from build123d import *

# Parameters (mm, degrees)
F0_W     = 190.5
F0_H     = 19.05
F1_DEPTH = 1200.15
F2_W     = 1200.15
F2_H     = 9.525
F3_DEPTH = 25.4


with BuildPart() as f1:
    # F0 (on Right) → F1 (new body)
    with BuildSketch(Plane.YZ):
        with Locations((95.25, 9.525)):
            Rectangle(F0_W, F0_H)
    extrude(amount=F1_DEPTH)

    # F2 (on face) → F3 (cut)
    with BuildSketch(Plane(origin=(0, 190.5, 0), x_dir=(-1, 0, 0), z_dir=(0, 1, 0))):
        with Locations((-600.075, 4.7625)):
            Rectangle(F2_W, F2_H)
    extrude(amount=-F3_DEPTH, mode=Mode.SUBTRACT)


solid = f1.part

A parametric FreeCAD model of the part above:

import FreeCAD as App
import Part
import Sketcher
from FreeCAD import Vector
Q = App.Units.Quantity

doc = App.newDocument("Part")
body = doc.addObject("PartDesign::Body", "Body")

sketch1 = body.newObject("Sketcher::SketchObject", "Sketch")
sketch1.AttachmentSupport = (doc.getObject("YZ_Plane"), [""])
sketch1.MapMode = "FlatFace"
sketch1.addGeometry(Part.LineSegment(Vector(0, 19, 0), Vector(0, 0, 0)), False)
sketch1.addGeometry(Part.LineSegment(Vector(0, 0, 0), Vector(190, 0, 0)), False)
sketch1.addGeometry(Part.LineSegment(Vector(190, 0, 0), Vector(190, 19, 0)), False)
sketch1.addGeometry(Part.LineSegment(Vector(190, 19, 0), Vector(0, 19, 0)), False)
sketch1.addConstraint(Sketcher.Constraint("Coincident", 0, 2, 1, 1))
sketch1.addConstraint(Sketcher.Constraint("Coincident", 1, 2, 2, 1))
sketch1.addConstraint(Sketcher.Constraint("Coincident", 2, 2, 3, 1))
sketch1.addConstraint(Sketcher.Constraint("Coincident", 3, 2, 0, 1))
sketch1.addConstraint(Sketcher.Constraint("Vertical", 0))
sketch1.addConstraint(Sketcher.Constraint("Horizontal", 1))
sketch1.addConstraint(Sketcher.Constraint("Vertical", 2))
sketch1.addConstraint(Sketcher.Constraint("Horizontal", 3))
sketch1.addConstraint(Sketcher.Constraint("Coincident", 0, 2, -1, 1))
sketch1.addConstraint(Sketcher.Constraint("DistanceX", 1, 1, 1, 2, Q("7.5 in")))
sketch1.addConstraint(Sketcher.Constraint("DistanceY", 0, 2, 0, 1, Q("0.75 in")))
pad1 = body.newObject("PartDesign::Pad", "Pad")
pad1.Profile = sketch1
pad1.Length = Q("47.25 in")

sketch2 = body.newObject("Sketcher::SketchObject", "Sketch001")
sketch2.AttachmentSupport = (doc.getObject("XZ_Plane"), [""])
sketch2.MapMode = "FlatFace"
sketch2.AttachmentOffset = App.Placement(Vector(0, 0, -7.5 * 25.4), App.Rotation())
sketch2.addGeometry(Part.LineSegment(Vector(1200, 10, 0), Vector(1200, 0, 0)), False)
sketch2.addGeometry(Part.LineSegment(Vector(1200, 0, 0), Vector(0, 0, 0)), False)
sketch2.addGeometry(Part.LineSegment(Vector(0, 0, 0), Vector(0, 10, 0)), False)
sketch2.addGeometry(Part.LineSegment(Vector(0, 10, 0), Vector(1200, 10, 0)), False)
sketch2.addConstraint(Sketcher.Constraint("Coincident", 0, 2, 1, 1))
sketch2.addConstraint(Sketcher.Constraint("Coincident", 1, 2, 2, 1))
sketch2.addConstraint(Sketcher.Constraint("Coincident", 2, 2, 3, 1))
sketch2.addConstraint(Sketcher.Constraint("Coincident", 3, 2, 0, 1))
sketch2.addConstraint(Sketcher.Constraint("Vertical", 0))
sketch2.addConstraint(Sketcher.Constraint("Horizontal", 1))
sketch2.addConstraint(Sketcher.Constraint("Vertical", 2))
sketch2.addConstraint(Sketcher.Constraint("Horizontal", 3))
sketch2.addConstraint(Sketcher.Constraint("Coincident", 1, 2, -1, 1))
sketch2.addConstraint(Sketcher.Constraint("DistanceX", 1, 2, 1, 1, Q("47.25 in")))
sketch2.addConstraint(Sketcher.Constraint("DistanceY", 0, 2, 0, 1, Q("0.375 in")))
pocket1 = body.newObject("PartDesign::Pocket", "Pocket")
pocket1.Profile = sketch2
pocket1.Length = Q("1 in")
pocket1.Reversed = True

doc.recompute()
